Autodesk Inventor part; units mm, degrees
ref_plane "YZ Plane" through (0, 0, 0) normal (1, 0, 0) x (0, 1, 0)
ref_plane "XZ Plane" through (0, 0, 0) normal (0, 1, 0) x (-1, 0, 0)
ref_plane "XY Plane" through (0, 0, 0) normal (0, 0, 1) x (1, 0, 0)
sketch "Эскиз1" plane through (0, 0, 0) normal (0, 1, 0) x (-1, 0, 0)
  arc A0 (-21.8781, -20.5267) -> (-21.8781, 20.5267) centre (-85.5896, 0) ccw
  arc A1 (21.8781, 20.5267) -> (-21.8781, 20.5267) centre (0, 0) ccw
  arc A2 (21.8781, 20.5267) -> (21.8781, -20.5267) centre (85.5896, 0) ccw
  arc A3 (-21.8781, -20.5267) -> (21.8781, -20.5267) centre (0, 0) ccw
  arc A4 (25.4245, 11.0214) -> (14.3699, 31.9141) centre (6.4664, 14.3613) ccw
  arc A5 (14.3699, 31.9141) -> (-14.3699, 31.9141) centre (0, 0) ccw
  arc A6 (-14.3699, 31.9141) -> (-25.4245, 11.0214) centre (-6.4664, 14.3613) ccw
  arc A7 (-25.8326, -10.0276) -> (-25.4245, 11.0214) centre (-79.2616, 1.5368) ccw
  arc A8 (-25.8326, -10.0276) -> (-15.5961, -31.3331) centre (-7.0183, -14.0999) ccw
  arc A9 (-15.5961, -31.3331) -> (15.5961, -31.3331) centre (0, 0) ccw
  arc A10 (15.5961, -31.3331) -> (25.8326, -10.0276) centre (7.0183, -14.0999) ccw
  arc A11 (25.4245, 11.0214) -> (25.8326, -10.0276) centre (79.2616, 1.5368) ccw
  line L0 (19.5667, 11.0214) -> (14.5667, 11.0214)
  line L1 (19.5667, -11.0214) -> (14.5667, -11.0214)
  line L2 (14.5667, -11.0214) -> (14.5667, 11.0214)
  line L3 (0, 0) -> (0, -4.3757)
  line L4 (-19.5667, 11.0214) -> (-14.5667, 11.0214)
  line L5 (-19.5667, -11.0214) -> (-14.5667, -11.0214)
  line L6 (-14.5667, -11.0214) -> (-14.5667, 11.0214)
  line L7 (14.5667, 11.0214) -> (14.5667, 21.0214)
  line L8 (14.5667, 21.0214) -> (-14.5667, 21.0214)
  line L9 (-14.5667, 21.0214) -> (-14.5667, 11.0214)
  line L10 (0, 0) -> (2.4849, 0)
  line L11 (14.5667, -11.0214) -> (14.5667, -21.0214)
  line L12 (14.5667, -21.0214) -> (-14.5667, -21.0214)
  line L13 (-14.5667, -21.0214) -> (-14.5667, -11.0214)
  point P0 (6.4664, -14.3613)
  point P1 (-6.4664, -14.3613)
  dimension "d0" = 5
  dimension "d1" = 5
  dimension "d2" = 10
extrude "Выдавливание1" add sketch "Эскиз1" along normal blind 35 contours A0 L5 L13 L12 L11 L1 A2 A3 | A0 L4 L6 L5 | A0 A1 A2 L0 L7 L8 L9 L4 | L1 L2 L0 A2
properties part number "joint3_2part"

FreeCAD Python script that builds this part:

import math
import FreeCAD as App
import Part
import Sketcher
from FreeCAD import Vector


def add_polygon(sketch, points):
    """Adds a closed chain of lines whose ends are joined by coincident constraints."""
    first, n = sketch.GeometryCount, len(points)
    for a, b in zip(points, points[1:] + points[:1]):
        sketch.addGeometry(Part.LineSegment(App.Vector(*a, 0), App.Vector(*b, 0)), False)
    for i in range(n):
        sketch.addConstraint(Sketcher.Constraint("Coincident", first + i, 2, first + (i + 1) % n, 1))

doc = App.newDocument("Part")
body = doc.addObject("PartDesign::Body", "Body")

# Sketch on XZ plane
sketch1 = body.newObject("Sketcher::SketchObject", "Sketch")
sketch1.AttachmentSupport = (doc.getObject("XZ_Plane"), [""])
sketch1.MapMode = "FlatFace"
sketch1.addGeometry(Part.ArcOfCircle(Part.Circle(Vector(0, 0, 0), Vector(0, 0, 1), 30), math.radians(-137), math.radians(-43)), False)  # 0
sketch1.addGeometry(Part.ArcOfCircle(Part.Circle(Vector(-86, 0, 0), Vector(0, 0, 1), 67), math.radians(-18), math.radians(18)), False)  # 1
sketch1.addGeometry(Part.ArcOfCircle(Part.Circle(Vector(0, 0, 0), Vector(0, 0, 1), 30), math.radians(43), math.radians(137)), False)  # 2
sketch1.addGeometry(Part.ArcOfCircle(Part.Circle(Vector(86, 0, 0), Vector(0, 0, 1), 67), math.radians(162), math.radians(198)), False)  # 3
add_polygon(sketch1, [(15, -21), (15, 21), (-15, 21), (-15, -21)])  # lines 4-7
sketch1.addConstraint(Sketcher.Constraint("Coincident", 0, 1, 1, 1))
sketch1.addConstraint(Sketcher.Constraint("Coincident", 1, 2, 2, 2))
sketch1.addConstraint(Sketcher.Constraint("Coincident", 2, 1, 3, 1))
sketch1.addConstraint(Sketcher.Constraint("Coincident", 3, 2, 0, 2))
sketch1.addConstraint(Sketcher.Constraint("Vertical", 4))
sketch1.addConstraint(Sketcher.Constraint("Horizontal", 5))
sketch1.addConstraint(Sketcher.Constraint("Vertical", 6))
sketch1.addConstraint(Sketcher.Constraint("Horizontal", 7))
sketch1.addConstraint(Sketcher.Constraint("Coincident", 0, 3, -1, 1))
sketch1.addConstraint(Sketcher.Constraint("Coincident", 2, 3, -1, 1))
sketch1.addConstraint(Sketcher.Constraint("Equal", 0, 2))
sketch1.addConstraint(Sketcher.Constraint("Equal", 1, 3))
sketch1.addConstraint(Sketcher.Constraint("Symmetric", 1, 3, 3, 3, -1, 1))
sketch1.addConstraint(Sketcher.Constraint("Symmetric", 4, 2, 6, 2, -1, 1))
sketch1.addConstraint(Sketcher.Constraint("PointOnObject", 1, 3, -1))
sketch1.addConstraint(Sketcher.Constraint("Radius", 0, 30.0))
sketch1.addConstraint(Sketcher.Constraint("Radius", 1, 66.9365))
sketch1.addConstraint(Sketcher.Constraint("DistanceX", 5, 2, 5, 1, 29.1334))
sketch1.addConstraint(Sketcher.Constraint("DistanceY", 4, 1, 4, 2, 42.0428))
sketch1.addConstraint(Sketcher.Constraint("DistanceX", 0, 1, -1, 1, 21.878))
pad1 = body.newObject("PartDesign::Pad", "Pad")
pad1.Profile = sketch1
pad1.Length = 35
pad1.Reversed = True

doc.recompute()
